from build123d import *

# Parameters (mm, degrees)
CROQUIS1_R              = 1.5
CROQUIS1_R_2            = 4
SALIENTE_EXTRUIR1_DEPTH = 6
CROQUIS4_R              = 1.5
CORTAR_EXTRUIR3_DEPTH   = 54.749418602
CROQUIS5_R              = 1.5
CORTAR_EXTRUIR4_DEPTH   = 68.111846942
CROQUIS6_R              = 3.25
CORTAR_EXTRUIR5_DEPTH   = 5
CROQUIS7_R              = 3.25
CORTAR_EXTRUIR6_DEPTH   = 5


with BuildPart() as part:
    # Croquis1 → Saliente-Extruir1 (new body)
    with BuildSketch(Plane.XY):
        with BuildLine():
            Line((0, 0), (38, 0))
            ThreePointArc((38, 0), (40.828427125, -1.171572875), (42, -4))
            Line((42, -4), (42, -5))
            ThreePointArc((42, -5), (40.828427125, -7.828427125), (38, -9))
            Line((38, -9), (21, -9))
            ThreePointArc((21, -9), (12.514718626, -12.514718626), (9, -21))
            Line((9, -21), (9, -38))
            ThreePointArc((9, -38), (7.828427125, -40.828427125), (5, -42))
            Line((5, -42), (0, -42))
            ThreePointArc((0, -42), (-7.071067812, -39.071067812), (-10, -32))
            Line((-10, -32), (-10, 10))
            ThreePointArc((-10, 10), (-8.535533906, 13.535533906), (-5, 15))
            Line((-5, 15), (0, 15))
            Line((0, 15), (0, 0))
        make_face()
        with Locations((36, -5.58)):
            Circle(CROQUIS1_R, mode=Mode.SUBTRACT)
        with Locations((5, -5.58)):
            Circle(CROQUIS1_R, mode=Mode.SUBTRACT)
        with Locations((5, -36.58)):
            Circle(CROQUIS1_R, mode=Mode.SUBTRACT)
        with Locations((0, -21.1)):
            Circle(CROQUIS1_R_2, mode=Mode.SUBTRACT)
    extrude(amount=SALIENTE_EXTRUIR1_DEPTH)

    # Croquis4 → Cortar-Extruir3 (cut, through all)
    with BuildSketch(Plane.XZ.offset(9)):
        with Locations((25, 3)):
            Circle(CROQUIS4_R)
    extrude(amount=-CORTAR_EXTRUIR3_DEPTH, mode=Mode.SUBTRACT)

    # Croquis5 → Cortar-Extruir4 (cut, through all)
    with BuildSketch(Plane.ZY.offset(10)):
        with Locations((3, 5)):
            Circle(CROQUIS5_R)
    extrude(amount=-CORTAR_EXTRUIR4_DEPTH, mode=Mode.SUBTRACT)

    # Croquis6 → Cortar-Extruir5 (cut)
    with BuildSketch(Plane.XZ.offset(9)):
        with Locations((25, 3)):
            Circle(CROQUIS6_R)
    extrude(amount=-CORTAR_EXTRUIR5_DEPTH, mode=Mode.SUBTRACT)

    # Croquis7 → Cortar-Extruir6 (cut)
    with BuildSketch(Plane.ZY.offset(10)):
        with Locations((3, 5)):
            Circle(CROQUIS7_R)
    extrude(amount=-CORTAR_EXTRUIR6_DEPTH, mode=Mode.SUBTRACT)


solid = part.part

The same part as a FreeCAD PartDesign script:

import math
import FreeCAD as App
import Part
import Sketcher

V = App.Vector

doc = App.newDocument("Part")
params = doc.addObject("Spreadsheet::Sheet", "Params")
for row, (alias, value) in enumerate([
    ("sketch1_diameter", "3 mm"),
    ("sketch1_diameter2", "8 mm"),
    ("sketch1_radius", "5 mm"),
    ("sketch1_radius2", "10 mm"),
    ("sketch1_radius3", "12 mm"),
    ("pad1_length", "6 mm"),
    ("sketch2_diameter", "3 mm"),
    ("sketch3_diameter", "3 mm"),
    ("sketch4_diameter", "6.5 mm"),
    ("pocket3_length", "5 mm"),
    ("sketch5_diameter", "6.5 mm"),
    ("pocket4_length", "5 mm"),
], start=1):
    params.set(f"A{row}", alias)
    params.set(f"B{row}", "=" + value)
    params.setAlias(f"B{row}", alias)

body = doc.addObject("PartDesign::Body", "Body")

# Sketch on XY plane
sketch1 = doc.addObject("Sketcher::SketchObject", "Sketch")
body.addObject(sketch1)
sketch1.AttachmentSupport = (doc.XY_Plane, [""])
sketch1.MapMode = "FlatFace"
sketch1.addGeometry([
    Part.LineSegment(V(38, 0, 0), V(0, 0, 0)),  # 0
    Part.LineSegment(V(0, 0, 0), V(0, 15, 0)),  # 1
    Part.LineSegment(V(0, 15, 0), V(-5, 15, 0)),  # 2
    Part.ArcOfCircle(Part.Circle(V(-5, 10, 0), V(0, 0, 1), 5), math.radians(90), math.radians(180)),  # 3
    Part.LineSegment(V(-10, 10, 0), V(-10, -32, 0)),  # 4
    Part.ArcOfCircle(Part.Circle(V(0, -32, 0), V(0, 0, 1), 10), math.radians(180), math.radians(270)),  # 5
    Part.LineSegment(V(0, -42, 0), V(5, -42, 0)),  # 6
    Part.ArcOfCircle(Part.Circle(V(5, -38, 0), V(0, 0, 1), 4), math.radians(-90), math.radians(0)),  # 7
    Part.LineSegment(V(9, -38, 0), V(9, -21, 0)),  # 8
    Part.ArcOfCircle(Part.Circle(V(21, -21, 0), V(0, 0, 1), 12), math.radians(90), math.radians(180)),  # 9
    Part.LineSegment(V(21, -9, 0), V(38, -9, 0)),  # 10
    Part.ArcOfCircle(Part.Circle(V(38, -5, 0), V(0, 0, 1), 4), math.radians(-90), math.radians(0)),  # 11
    Part.LineSegment(V(42, -5, 0), V(42, -4, 0)),  # 12
    Part.ArcOfCircle(Part.Circle(V(38, -4, 0), V(0, 0, 1), 4), math.radians(0), math.radians(90)),  # 13
    Part.Circle(V(5, -36.6, 0), V(0, 0, 1), 1.5),  # 14
    Part.Circle(V(0, -21.1, 0), V(0, 0, 1), 4),  # 15
    Part.Circle(V(36, -5.6, 0), V(0, 0, 1), 1.5),  # 16
    Part.Circle(V(5, -5.6, 0), V(0, 0, 1), 1.5),  # 17
], False)
sketch1.addConstraint([
    Sketcher.Constraint("Coincident", 0, 2, 1, 1),
    Sketcher.Constraint("Coincident", 1, 2, 2, 1),
    Sketcher.Constraint("Tangent", 2, 2, 3, 1),
    Sketcher.Constraint("Tangent", 3, 2, 4, 1),
    Sketcher.Constraint("Tangent", 4, 2, 5, 1),
    Sketcher.Constraint("Tangent", 5, 2, 6, 1),
    Sketcher.Constraint("Tangent", 6, 2, 7, 1),
    Sketcher.Constraint("Tangent", 7, 2, 8, 1),
    Sketcher.Constraint("Tangent", 8, 2, 9, 2),
    Sketcher.Constraint("Tangent", 9, 1, 10, 1),
    Sketcher.Constraint("Tangent", 10, 2, 11, 1),
    Sketcher.Constraint("Tangent", 11, 2, 12, 1),
    Sketcher.Constraint("Tangent", 12, 2, 13, 1),
    Sketcher.Constraint("Tangent", 13, 2, 0, 1),
    Sketcher.Constraint("Horizontal", 0),
    Sketcher.Constraint("Vertical", 1),
    Sketcher.Constraint("Horizontal", 2),
    Sketcher.Constraint("Vertical", 4),
    Sketcher.Constraint("Horizontal", 6),
    Sketcher.Constraint("Vertical", 8),
    Sketcher.Constraint("Horizontal", 10),
    Sketcher.Constraint("Vertical", 12),
    Sketcher.Constraint("Coincident", 0, 2, -1, 1),
    Sketcher.Constraint("Equal", 7, 11),
    Sketcher.Constraint("Equal", 11, 13),
    Sketcher.Constraint("Equal", 13, 15),
    Sketcher.Constraint("Equal", 14, 16),
    Sketcher.Constraint("Equal", 16, 17),
    Sketcher.Constraint("PointOnObject", 5, 3, -2),
    Sketcher.Constraint("PointOnObject", 15, 3, -2),
    Sketcher.Constraint("Horizontal", 16, 3, 17, 3),
    Sketcher.Constraint("Vertical", 7, 3, 14, 3),
    Sketcher.Constraint("Vertical", 14, 3, 17, 3),
    Sketcher.Constraint("Equal", 2, 6),
    Sketcher.Constraint("Equal", 10, 8),
    Sketcher.Constraint("Diameter", 14, 3.0),
    Sketcher.Constraint("Diameter", 15, 8.0),
    Sketcher.Constraint("Radius", 3, 5.0),
    Sketcher.Constraint("Radius", 5, 10.0),
    Sketcher.Constraint("Radius", 9, 12.0),
    Sketcher.Constraint("DistanceX", 0, 2, 0, 1, 38.0),
    Sketcher.Constraint("DistanceY", 1, 1, 1, 2, 15.0),
    Sketcher.Constraint("DistanceY", 4, 2, 4, 1, 42.0),
    Sketcher.Constraint("DistanceX", -1, 1, 16, 3, 36.0),
    Sketcher.Constraint("DistanceY", 14, 3, 16, 3, 31.0),
    Sketcher.Constraint("DistanceY", 15, 3, -1, 1, 21.1),
    Sketcher.Constraint("DistanceY", 14, 3, -1, 1, 36.58),
])
sketch1.setExpression("Constraints[35]", "Params.sketch1_diameter")
sketch1.setExpression("Constraints[36]", "Params.sketch1_diameter2")
sketch1.setExpression("Constraints[37]", "Params.sketch1_radius")
sketch1.setExpression("Constraints[38]", "Params.sketch1_radius2")
sketch1.setExpression("Constraints[39]", "Params.sketch1_radius3")
pad1 = doc.addObject("PartDesign::Pad", "Pad")
body.addObject(pad1)
pad1.Profile = sketch1
pad1.setExpression("Length", "Params.pad1_length")

# Sketch on XZ plane
sketch2 = doc.addObject("Sketcher::SketchObject", "Sketch001")
body.addObject(sketch2)
sketch2.AttachmentSupport = (doc.XZ_Plane, [""])
sketch2.MapMode = "FlatFace"
sketch2.AttachmentOffset = App.Placement(V(0, 0, 9), App.Rotation())
sketch2.addGeometry(Part.Circle(V(25, 3, 0), V(0, 0, 1), 1.5), False)
sketch2.addConstraint([
    Sketcher.Constraint("Diameter", 0, 3.0),
    Sketcher.Constraint("DistanceX", -1, 1, 0, 3, 25.0),
    Sketcher.Constraint("DistanceY", -1, 1, 0, 3, 3.0),
])
sketch2.setExpression("Constraints[0]", "Params.sketch2_diameter")
pocket1 = doc.addObject("PartDesign::Pocket", "Pocket")
body.addObject(pocket1)
pocket1.Profile = sketch2
pocket1.Type = "ThroughAll"

# Sketch on YZ plane
sketch3 = doc.addObject("Sketcher::SketchObject", "Sketch002")
body.addObject(sketch3)
sketch3.AttachmentSupport = (doc.YZ_Plane, [""])
sketch3.MapMode = "FlatFace"
sketch3.AttachmentOffset = App.Placement(V(0, 0, -10), App.Rotation())
sketch3.addGeometry(Part.Circle(V(5, 3, 0), V(0, 0, 1), 1.5), False)
sketch3.addConstraint([
    Sketcher.Constraint("Diameter", 0, 3.0),
    Sketcher.Constraint("DistanceX", -1, 1, 0, 3, 5.0),
    Sketcher.Constraint("DistanceY", -1, 1, 0, 3, 3.0),
])
sketch3.setExpression("Constraints[0]", "Params.sketch3_diameter")
pocket2 = doc.addObject("PartDesign::Pocket", "Pocket001")
body.addObject(pocket2)
pocket2.Profile = sketch3
pocket2.Type = "ThroughAll"
pocket2.Reversed = True

# Sketch on XZ plane
sketch4 = doc.addObject("Sketcher::SketchObject", "Sketch003")
body.addObject(sketch4)
sketch4.AttachmentSupport = (doc.XZ_Plane, [""])
sketch4.MapMode = "FlatFace"
sketch4.AttachmentOffset = App.Placement(V(0, 0, 9), App.Rotation())
sketch4.addGeometry(Part.Circle(V(25, 3, 0), V(0, 0, 1), 3.2), False)
sketch4.addConstraint([
    Sketcher.Constraint("Diameter", 0, 6.5),
    Sketcher.Constraint("DistanceX", -1, 1, 0, 3, 25.0),
    Sketcher.Constraint("DistanceY", -1, 1, 0, 3, 3.0),
])
sketch4.setExpression("Constraints[0]", "Params.sketch4_diameter")
pocket3 = doc.addObject("PartDesign::Pocket", "Pocket002")
body.addObject(pocket3)
pocket3.Profile = sketch4
pocket3.setExpression("Length", "Params.pocket3_length")

# Sketch on YZ plane
sketch5 = doc.addObject("Sketcher::SketchObject", "Sketch004")
body.addObject(sketch5)
sketch5.AttachmentSupport = (doc.YZ_Plane, [""])
sketch5.MapMode = "FlatFace"
sketch5.AttachmentOffset = App.Placement(V(0, 0, -10), App.Rotation())
sketch5.addGeometry(Part.Circle(V(5, 3, 0), V(0, 0, 1), 3.2), False)
sketch5.addConstraint([
    Sketcher.Constraint("Diameter", 0, 6.5),
    Sketcher.Constraint("DistanceX", -1, 1, 0, 3, 5.0),
    Sketcher.Constraint("DistanceY", -1, 1, 0, 3, 3.0),
])
sketch5.setExpression("Constraints[0]", "Params.sketch5_diameter")
pocket4 = doc.addObject("PartDesign::Pocket", "Pocket003")
body.addObject(pocket4)
pocket4.Profile = sketch5
pocket4.setExpression("Length", "Params.pocket4_length")
pocket4.Reversed = True

doc.recompute()
